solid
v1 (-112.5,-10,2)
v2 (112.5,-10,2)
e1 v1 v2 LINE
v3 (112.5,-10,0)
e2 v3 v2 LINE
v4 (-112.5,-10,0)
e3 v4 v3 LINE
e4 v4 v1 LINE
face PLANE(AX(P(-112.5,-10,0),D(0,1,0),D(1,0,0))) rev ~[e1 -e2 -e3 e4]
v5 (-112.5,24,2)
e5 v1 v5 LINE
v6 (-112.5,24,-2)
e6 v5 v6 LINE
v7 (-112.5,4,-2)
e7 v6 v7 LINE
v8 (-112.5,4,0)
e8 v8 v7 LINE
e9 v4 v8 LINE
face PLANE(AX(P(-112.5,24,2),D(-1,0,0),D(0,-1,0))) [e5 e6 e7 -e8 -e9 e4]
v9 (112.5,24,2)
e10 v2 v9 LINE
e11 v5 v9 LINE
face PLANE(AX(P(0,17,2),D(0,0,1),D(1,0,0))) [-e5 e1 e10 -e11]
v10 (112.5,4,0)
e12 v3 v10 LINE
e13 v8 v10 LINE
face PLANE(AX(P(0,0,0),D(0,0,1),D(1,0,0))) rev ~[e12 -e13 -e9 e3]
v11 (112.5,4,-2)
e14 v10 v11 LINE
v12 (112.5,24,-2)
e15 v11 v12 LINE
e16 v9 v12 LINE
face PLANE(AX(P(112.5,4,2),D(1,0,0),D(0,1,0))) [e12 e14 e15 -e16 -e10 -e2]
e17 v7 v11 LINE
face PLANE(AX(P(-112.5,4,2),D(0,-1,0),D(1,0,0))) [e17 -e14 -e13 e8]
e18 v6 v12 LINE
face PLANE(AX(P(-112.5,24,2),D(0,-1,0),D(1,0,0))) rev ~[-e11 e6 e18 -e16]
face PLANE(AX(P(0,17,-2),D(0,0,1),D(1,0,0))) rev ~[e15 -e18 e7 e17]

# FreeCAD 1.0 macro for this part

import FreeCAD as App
import Part
import Sketcher
Q = App.Units.Quantity


def add_polygon(sketch, points):
    """Adds a closed chain of lines whose ends are joined by coincident constraints."""
    first, n = sketch.GeometryCount, len(points)
    for a, b in zip(points, points[1:] + points[:1]):
        sketch.addGeometry(Part.LineSegment(App.Vector(*a, 0), App.Vector(*b, 0)), False)
    for i in range(n):
        sketch.addConstraint(Sketcher.Constraint("Coincident", first + i, 2, first + (i + 1) % n, 1))

doc = App.newDocument("Part")
body = doc.addObject("PartDesign::Body", "Body")

sketch1 = body.newObject("Sketcher::SketchObject", "Sketch")
sketch1.AttachmentSupport = (doc.getObject("XY_Plane"), [""])
sketch1.MapMode = "FlatFace"
add_polygon(sketch1, [(-112, 10), (-112, -10), (112, -10), (112, 10)])
sketch1.addConstraint(Sketcher.Constraint("Vertical", 0))
sketch1.addConstraint(Sketcher.Constraint("Horizontal", 1))
sketch1.addConstraint(Sketcher.Constraint("Vertical", 2))
sketch1.addConstraint(Sketcher.Constraint("Horizontal", 3))
sketch1.addConstraint(Sketcher.Constraint("Symmetric", 0, 2, 2, 2, -1, 1))
sketch1.addConstraint(Sketcher.Constraint("DistanceX", 1, 1, 1, 2, Q("225 mm")))
sketch1.addConstraint(Sketcher.Constraint("DistanceY", 0, 2, 0, 1, Q("20 mm")))
pad1 = body.newObject("PartDesign::Pad", "Pad")
pad1.Profile = sketch1
pad1.Length = 2

sketch2 = body.newObject("Sketcher::SketchObject", "Sketch001")
sketch2.AttachmentSupport = (doc.getObject("XY_Plane"), [""])
sketch2.MapMode = "FlatFace"
sketch2.AttachmentOffset = App.Placement(App.Vector(0, 0, 2), App.Rotation())
add_polygon(sketch2, [(-112, 24), (-112, 4), (112, 4), (112, 24)])
sketch2.addConstraint(Sketcher.Constraint("Vertical", 0))
sketch2.addConstraint(Sketcher.Constraint("Horizontal", 1))
sketch2.addConstraint(Sketcher.Constraint("Vertical", 2))
sketch2.addConstraint(Sketcher.Constraint("Horizontal", 3))
sketch2.addConstraint(Sketcher.Constraint("DistanceX", 1, 1, 1, 2, Q("225 mm")))
sketch2.addConstraint(Sketcher.Constraint("DistanceY", 0, 2, 0, 1, Q("20 mm")))
sketch2.addConstraint(Sketcher.Constraint("DistanceY", -1, 1, 0, 2, Q("4 mm")))
sketch2.addConstraint(Sketcher.Constraint("DistanceX", 0, 2, -1, 1, Q("112.5 mm")))
pad2 = body.newObject("PartDesign::Pad", "Pad001")
pad2.Profile = sketch2
pad2.Length = 4
pad2.Reversed = True

doc.recompute()
